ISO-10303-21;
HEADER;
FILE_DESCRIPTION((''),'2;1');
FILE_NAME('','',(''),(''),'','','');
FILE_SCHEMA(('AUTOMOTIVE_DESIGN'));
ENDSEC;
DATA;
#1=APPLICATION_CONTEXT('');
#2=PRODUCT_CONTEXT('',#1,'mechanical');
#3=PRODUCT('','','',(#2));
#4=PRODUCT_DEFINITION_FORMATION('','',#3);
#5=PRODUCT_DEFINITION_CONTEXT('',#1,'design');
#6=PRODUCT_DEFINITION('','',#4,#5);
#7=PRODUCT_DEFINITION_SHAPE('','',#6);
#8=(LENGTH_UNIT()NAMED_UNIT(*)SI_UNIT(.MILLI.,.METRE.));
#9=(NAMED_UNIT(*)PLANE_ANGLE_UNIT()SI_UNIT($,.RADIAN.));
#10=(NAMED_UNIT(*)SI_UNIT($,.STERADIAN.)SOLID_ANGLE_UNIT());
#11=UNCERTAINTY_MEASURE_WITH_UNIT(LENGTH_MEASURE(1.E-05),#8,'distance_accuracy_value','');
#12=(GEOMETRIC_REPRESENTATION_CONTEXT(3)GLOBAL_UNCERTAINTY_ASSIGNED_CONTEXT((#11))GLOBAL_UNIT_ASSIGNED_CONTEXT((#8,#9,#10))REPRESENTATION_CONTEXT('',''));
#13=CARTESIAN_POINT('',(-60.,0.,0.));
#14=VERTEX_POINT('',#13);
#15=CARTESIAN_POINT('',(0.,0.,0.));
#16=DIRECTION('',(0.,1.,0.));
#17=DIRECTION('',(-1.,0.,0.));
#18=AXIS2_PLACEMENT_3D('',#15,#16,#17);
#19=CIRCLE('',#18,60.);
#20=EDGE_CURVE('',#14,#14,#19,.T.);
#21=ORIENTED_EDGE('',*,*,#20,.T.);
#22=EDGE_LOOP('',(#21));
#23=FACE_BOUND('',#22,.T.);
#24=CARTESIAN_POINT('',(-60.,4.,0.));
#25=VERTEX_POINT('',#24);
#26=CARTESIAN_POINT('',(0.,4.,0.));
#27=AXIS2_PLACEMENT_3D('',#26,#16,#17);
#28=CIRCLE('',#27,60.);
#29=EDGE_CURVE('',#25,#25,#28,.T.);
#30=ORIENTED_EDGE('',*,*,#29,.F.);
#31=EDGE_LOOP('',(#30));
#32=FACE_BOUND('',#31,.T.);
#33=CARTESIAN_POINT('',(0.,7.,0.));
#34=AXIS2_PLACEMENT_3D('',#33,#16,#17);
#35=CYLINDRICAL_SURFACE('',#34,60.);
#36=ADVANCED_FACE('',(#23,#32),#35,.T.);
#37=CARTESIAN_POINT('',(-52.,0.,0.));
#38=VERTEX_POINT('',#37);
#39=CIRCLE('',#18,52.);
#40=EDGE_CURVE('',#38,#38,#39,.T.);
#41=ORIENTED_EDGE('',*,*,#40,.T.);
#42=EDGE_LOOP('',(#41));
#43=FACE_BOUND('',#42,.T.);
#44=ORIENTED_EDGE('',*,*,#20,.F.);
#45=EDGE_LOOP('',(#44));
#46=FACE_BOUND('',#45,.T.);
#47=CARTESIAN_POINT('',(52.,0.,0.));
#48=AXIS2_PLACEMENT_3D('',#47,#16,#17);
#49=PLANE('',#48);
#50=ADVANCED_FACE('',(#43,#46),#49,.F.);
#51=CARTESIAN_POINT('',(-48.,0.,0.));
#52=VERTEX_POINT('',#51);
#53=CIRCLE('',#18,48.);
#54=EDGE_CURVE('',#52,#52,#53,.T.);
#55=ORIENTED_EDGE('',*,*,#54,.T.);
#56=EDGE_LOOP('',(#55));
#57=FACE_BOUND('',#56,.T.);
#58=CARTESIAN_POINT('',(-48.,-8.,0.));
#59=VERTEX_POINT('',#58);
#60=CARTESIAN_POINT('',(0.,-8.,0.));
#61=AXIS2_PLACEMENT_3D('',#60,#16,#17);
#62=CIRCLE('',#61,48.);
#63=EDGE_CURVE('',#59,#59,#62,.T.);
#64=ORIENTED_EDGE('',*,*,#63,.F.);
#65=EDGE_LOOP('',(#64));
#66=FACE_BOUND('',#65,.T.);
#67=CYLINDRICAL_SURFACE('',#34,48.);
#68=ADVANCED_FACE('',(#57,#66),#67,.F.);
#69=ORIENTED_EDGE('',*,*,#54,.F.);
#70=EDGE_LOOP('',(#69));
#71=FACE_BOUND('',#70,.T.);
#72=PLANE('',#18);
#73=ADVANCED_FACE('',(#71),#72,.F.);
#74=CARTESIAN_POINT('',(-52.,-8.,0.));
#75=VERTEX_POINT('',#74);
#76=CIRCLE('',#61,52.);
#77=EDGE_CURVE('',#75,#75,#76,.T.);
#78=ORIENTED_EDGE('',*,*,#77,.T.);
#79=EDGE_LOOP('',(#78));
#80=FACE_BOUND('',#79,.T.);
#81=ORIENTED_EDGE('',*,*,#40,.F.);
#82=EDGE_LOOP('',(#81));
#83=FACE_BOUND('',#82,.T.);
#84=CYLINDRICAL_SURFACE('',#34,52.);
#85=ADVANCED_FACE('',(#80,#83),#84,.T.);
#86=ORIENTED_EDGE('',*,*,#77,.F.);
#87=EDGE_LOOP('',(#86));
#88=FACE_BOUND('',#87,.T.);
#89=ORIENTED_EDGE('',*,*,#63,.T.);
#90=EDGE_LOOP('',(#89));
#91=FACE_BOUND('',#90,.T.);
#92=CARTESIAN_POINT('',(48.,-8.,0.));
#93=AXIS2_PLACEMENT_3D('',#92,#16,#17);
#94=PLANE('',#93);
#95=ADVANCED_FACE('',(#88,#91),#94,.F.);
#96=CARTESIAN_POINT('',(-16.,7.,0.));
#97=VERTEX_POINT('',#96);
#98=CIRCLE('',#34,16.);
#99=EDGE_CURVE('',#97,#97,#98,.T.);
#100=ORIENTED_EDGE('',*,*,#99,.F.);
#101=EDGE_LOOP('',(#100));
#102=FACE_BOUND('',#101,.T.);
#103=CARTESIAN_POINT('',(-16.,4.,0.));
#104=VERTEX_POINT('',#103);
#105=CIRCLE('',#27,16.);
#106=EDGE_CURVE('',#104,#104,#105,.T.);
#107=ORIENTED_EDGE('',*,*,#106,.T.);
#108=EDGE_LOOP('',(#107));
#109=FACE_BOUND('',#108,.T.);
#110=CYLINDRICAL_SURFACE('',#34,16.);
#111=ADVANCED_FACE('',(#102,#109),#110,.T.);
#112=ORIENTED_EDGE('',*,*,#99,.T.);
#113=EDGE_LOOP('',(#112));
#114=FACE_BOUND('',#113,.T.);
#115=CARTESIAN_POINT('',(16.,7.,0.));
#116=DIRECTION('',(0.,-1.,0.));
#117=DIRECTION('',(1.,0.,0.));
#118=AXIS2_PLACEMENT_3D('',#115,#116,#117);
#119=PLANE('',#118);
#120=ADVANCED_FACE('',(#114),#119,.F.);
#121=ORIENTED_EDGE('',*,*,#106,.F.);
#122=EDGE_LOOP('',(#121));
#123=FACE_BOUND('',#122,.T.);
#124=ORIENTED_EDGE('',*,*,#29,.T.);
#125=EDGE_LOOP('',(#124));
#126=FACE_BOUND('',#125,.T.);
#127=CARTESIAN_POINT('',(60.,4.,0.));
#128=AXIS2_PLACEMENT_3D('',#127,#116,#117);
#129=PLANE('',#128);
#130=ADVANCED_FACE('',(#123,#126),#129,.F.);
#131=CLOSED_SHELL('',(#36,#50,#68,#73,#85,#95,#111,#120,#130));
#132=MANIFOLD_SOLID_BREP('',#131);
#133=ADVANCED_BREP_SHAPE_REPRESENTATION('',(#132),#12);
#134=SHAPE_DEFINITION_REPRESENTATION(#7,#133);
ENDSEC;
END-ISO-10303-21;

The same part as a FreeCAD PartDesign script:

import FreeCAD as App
import Part
import Sketcher

V = App.Vector
Q = App.Units.Quantity


def add_polygon(sketch, points):
    """Adds a closed chain of lines whose ends are joined by coincident constraints."""
    first, n = sketch.GeometryCount, len(points)
    for a, b in zip(points, points[1:] + points[:1]):
        sketch.addGeometry(Part.LineSegment(App.Vector(*a, 0), App.Vector(*b, 0)), False)
    for i in range(n):
        sketch.addConstraint(Sketcher.Constraint("Coincident", first + i, 2, first + (i + 1) % n, 1))

doc = App.newDocument("Part")
body = doc.addObject("PartDesign::Body", "Body")

sketch1 = body.newObject("Sketcher::SketchObject", "Sketch")
sketch1.AttachmentSupport = (doc.getObject("XY_Plane"), [""])
sketch1.MapMode = "FlatFace"
add_polygon(sketch1, [(0, 0), (48, 0), (48, -8), (52, -8), (52, 0), (60, 0), (60, 4), (16, 4), (16, 7), (0, 7)])
sketch1.addConstraint([
    Sketcher.Constraint("Horizontal", 0),
    Sketcher.Constraint("Vertical", 1),
    Sketcher.Constraint("Horizontal", 2),
    Sketcher.Constraint("Vertical", 3),
    Sketcher.Constraint("Horizontal", 4),
    Sketcher.Constraint("Vertical", 5),
    Sketcher.Constraint("Horizontal", 6),
    Sketcher.Constraint("Vertical", 7),
    Sketcher.Constraint("Horizontal", 8),
    Sketcher.Constraint("Vertical", 9),
    Sketcher.Constraint("Coincident", 9, 2, -1, 1),
    Sketcher.Constraint("PointOnObject", 3, 2, -1),
    Sketcher.Constraint("Equal", 4, 1),
    Sketcher.Constraint("Equal", 2, 5),
    Sketcher.Constraint("DistanceX", 0, 1, 0, 2, Q("48 mm")),
    Sketcher.Constraint("DistanceX", 2, 1, 2, 2, Q("4 mm")),
    Sketcher.Constraint("DistanceX", 4, 1, 4, 2, Q("8 mm")),
    Sketcher.Constraint("DistanceX", 6, 2, 6, 1, Q("44 mm")),
    Sketcher.Constraint("DistanceY", 7, 1, 7, 2, Q("3 mm")),
])
revolution = body.newObject("PartDesign::Revolution", "Revolution")
revolution.Profile = sketch1
revolution.ReferenceAxis = (sketch1, ["V_Axis"])
revolution.Angle = 360

doc.recompute()
